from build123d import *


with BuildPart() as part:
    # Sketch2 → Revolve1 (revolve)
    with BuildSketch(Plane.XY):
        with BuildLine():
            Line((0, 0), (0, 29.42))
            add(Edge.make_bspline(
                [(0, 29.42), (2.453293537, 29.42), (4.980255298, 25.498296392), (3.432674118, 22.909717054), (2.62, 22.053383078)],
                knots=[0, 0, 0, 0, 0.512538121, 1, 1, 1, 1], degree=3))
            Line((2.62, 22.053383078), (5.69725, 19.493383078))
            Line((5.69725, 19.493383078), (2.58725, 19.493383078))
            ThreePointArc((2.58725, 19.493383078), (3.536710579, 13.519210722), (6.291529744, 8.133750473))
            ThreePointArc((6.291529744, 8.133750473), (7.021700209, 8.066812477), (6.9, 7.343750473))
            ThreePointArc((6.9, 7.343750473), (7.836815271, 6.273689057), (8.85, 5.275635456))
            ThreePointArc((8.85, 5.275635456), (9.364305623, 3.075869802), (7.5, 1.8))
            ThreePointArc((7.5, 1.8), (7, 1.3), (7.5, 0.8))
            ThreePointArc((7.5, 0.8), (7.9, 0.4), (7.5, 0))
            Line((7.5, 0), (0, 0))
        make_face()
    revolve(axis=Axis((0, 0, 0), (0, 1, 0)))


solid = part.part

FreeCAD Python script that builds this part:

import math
import FreeCAD as App
import Part
import Sketcher
from FreeCAD import Vector
Q = App.Units.Quantity

doc = App.newDocument("Part")
body = doc.addObject("PartDesign::Body", "Body")

sketch1 = body.newObject("Sketcher::SketchObject", "Sketch")
sketch1.AttachmentSupport = (doc.getObject("XY_Plane"), [""])
sketch1.MapMode = "FlatFace"
sketch1.addGeometry(Part.LineSegment(Vector(0, 29.42, 0), Vector(0, 0, 0)), False)
sketch1.addGeometry(Part.LineSegment(Vector(0, 0, 0), Vector(7.5, 0, 0)), False)
sketch1.addGeometry(Part.ArcOfCircle(Part.Circle(Vector(7.5, 0.4, 0), Vector(0, 0, 1), 0.4), math.radians(-90), math.radians(90)), False)
sketch1.addGeometry(Part.ArcOfCircle(Part.Circle(Vector(7.5, 1.3, 0), Vector(0, 0, 1), 0.5), math.radians(90), math.radians(270)), False)
sketch1.addGeometry(Part.ArcOfCircle(Part.Circle(Vector(7.5, 3.8, 0), Vector(0, 0, 1), 2), math.radians(-90), math.radians(47.54585)), False)
sketch1.addGeometry(Part.ArcOfCircle(Part.Circle(Vector(21.85725, 19.493383, 0), Vector(0, 0, 1), 19.27), math.radians(-140.913371), math.radians(-132.45415)), False)
sketch1.addGeometry(Part.ArcOfCircle(Part.Circle(Vector(6.625577, 7.761712, 0), Vector(0, 0, 1), 0.5), math.radians(-56.712094), math.radians(131.920138)), False)
sketch1.addGeometry(Part.ArcOfCircle(Part.Circle(Vector(21.85725, 19.493383, 0), Vector(0, 0, 1), 19.27), math.radians(180), math.radians(216.121415)), False)
sketch1.addGeometry(Part.LineSegment(Vector(2.58725, 19.493383, 0), Vector(5.69725, 19.493383, 0)), False)
sketch1.addGeometry(Part.LineSegment(Vector(5.69725, 19.493383, 0), Vector(2.62, 22.053383, 0)), False)
sketch1.addGeometry(Part.BSplineCurve([Vector(0, 29.42, 0), Vector(2.453294, 29.42, 0), Vector(4.980255, 25.498296, 0), Vector(3.432674, 22.909717, 0), Vector(2.62, 22.053383, 0)], [4, 1, 4], [0, 0.512538121, 1], False, 3, [1, 1, 1, 1, 1], False), False)
sketch1.addConstraint(Sketcher.Constraint("Block", 10))
sketch1.addConstraint(Sketcher.Constraint("Coincident", 0, 2, 1, 1))
sketch1.addConstraint(Sketcher.Constraint("Tangent", 1, 2, 2, 1))
sketch1.addConstraint(Sketcher.Constraint("Tangent", 2, 2, 3, 2))
sketch1.addConstraint(Sketcher.Constraint("Tangent", 3, 1, 4, 1))
sketch1.addConstraint(Sketcher.Constraint("Tangent", 4, 2, 5, 2))
sketch1.addConstraint(Sketcher.Constraint("Coincident", 5, 1, 6, 1))
sketch1.addConstraint(Sketcher.Constraint("Coincident", 6, 2, 7, 2))
sketch1.addConstraint(Sketcher.Constraint("Coincident", 7, 1, 8, 1))
sketch1.addConstraint(Sketcher.Constraint("Coincident", 8, 2, 9, 1))
sketch1.addConstraint(Sketcher.Constraint("Coincident", 9, 2, 10, 2))
sketch1.addConstraint(Sketcher.Constraint("Coincident", 10, 1, 0, 1))
sketch1.addConstraint(Sketcher.Constraint("Vertical", 0))
sketch1.addConstraint(Sketcher.Constraint("Horizontal", 1))
sketch1.addConstraint(Sketcher.Constraint("Horizontal", 8))
sketch1.addConstraint(Sketcher.Constraint("Coincident", 7, 3, 5, 3))
sketch1.addConstraint(Sketcher.Constraint("Equal", 3, 6))
sketch1.addConstraint(Sketcher.Constraint("Equal", 5, 7))
sketch1.addConstraint(Sketcher.Constraint("PointOnObject", 1, 2, -1))
sketch1.addConstraint(Sketcher.Constraint("Horizontal", 5, 3, 7, 1))
sketch1.addConstraint(Sketcher.Constraint("Vertical", 2, 3, 3, 3))
sketch1.addConstraint(Sketcher.Constraint("Vertical", 3, 3, 4, 3))
sketch1.addConstraint(Sketcher.Constraint("Radius", 4, Q("2 mm")))
sketch1.addConstraint(Sketcher.Constraint("Radius", 2, Q("0.4 mm")))
sketch1.addConstraint(Sketcher.Constraint("Radius", 3, Q("0.5 mm")))
sketch1.addConstraint(Sketcher.Constraint("Radius", 5, Q("19.27 mm")))
sketch1.addConstraint(Sketcher.Constraint("DistanceX", 1, 1, 1, 2, Q("7.5 mm")))
sketch1.addConstraint(Sketcher.Constraint("DistanceX", 8, 1, 8, 2, Q("3.11 mm")))
sketch1.addConstraint(Sketcher.Constraint("DistanceX", -1, 1, 5, 1, Q("6.9 mm")))
sketch1.addConstraint(Sketcher.Constraint("DistanceX", -1, 1, 4, 2, Q("8.85 mm")))
sketch1.addConstraint(Sketcher.Constraint("DistanceY", 5, 1, 6, 2, Q("0.79 mm")))
revolution = body.newObject("PartDesign::Revolution", "Revolution")
revolution.Profile = sketch1
revolution.ReferenceAxis = (sketch1, ["V_Axis"])
revolution.Angle = 360

doc.recompute()
